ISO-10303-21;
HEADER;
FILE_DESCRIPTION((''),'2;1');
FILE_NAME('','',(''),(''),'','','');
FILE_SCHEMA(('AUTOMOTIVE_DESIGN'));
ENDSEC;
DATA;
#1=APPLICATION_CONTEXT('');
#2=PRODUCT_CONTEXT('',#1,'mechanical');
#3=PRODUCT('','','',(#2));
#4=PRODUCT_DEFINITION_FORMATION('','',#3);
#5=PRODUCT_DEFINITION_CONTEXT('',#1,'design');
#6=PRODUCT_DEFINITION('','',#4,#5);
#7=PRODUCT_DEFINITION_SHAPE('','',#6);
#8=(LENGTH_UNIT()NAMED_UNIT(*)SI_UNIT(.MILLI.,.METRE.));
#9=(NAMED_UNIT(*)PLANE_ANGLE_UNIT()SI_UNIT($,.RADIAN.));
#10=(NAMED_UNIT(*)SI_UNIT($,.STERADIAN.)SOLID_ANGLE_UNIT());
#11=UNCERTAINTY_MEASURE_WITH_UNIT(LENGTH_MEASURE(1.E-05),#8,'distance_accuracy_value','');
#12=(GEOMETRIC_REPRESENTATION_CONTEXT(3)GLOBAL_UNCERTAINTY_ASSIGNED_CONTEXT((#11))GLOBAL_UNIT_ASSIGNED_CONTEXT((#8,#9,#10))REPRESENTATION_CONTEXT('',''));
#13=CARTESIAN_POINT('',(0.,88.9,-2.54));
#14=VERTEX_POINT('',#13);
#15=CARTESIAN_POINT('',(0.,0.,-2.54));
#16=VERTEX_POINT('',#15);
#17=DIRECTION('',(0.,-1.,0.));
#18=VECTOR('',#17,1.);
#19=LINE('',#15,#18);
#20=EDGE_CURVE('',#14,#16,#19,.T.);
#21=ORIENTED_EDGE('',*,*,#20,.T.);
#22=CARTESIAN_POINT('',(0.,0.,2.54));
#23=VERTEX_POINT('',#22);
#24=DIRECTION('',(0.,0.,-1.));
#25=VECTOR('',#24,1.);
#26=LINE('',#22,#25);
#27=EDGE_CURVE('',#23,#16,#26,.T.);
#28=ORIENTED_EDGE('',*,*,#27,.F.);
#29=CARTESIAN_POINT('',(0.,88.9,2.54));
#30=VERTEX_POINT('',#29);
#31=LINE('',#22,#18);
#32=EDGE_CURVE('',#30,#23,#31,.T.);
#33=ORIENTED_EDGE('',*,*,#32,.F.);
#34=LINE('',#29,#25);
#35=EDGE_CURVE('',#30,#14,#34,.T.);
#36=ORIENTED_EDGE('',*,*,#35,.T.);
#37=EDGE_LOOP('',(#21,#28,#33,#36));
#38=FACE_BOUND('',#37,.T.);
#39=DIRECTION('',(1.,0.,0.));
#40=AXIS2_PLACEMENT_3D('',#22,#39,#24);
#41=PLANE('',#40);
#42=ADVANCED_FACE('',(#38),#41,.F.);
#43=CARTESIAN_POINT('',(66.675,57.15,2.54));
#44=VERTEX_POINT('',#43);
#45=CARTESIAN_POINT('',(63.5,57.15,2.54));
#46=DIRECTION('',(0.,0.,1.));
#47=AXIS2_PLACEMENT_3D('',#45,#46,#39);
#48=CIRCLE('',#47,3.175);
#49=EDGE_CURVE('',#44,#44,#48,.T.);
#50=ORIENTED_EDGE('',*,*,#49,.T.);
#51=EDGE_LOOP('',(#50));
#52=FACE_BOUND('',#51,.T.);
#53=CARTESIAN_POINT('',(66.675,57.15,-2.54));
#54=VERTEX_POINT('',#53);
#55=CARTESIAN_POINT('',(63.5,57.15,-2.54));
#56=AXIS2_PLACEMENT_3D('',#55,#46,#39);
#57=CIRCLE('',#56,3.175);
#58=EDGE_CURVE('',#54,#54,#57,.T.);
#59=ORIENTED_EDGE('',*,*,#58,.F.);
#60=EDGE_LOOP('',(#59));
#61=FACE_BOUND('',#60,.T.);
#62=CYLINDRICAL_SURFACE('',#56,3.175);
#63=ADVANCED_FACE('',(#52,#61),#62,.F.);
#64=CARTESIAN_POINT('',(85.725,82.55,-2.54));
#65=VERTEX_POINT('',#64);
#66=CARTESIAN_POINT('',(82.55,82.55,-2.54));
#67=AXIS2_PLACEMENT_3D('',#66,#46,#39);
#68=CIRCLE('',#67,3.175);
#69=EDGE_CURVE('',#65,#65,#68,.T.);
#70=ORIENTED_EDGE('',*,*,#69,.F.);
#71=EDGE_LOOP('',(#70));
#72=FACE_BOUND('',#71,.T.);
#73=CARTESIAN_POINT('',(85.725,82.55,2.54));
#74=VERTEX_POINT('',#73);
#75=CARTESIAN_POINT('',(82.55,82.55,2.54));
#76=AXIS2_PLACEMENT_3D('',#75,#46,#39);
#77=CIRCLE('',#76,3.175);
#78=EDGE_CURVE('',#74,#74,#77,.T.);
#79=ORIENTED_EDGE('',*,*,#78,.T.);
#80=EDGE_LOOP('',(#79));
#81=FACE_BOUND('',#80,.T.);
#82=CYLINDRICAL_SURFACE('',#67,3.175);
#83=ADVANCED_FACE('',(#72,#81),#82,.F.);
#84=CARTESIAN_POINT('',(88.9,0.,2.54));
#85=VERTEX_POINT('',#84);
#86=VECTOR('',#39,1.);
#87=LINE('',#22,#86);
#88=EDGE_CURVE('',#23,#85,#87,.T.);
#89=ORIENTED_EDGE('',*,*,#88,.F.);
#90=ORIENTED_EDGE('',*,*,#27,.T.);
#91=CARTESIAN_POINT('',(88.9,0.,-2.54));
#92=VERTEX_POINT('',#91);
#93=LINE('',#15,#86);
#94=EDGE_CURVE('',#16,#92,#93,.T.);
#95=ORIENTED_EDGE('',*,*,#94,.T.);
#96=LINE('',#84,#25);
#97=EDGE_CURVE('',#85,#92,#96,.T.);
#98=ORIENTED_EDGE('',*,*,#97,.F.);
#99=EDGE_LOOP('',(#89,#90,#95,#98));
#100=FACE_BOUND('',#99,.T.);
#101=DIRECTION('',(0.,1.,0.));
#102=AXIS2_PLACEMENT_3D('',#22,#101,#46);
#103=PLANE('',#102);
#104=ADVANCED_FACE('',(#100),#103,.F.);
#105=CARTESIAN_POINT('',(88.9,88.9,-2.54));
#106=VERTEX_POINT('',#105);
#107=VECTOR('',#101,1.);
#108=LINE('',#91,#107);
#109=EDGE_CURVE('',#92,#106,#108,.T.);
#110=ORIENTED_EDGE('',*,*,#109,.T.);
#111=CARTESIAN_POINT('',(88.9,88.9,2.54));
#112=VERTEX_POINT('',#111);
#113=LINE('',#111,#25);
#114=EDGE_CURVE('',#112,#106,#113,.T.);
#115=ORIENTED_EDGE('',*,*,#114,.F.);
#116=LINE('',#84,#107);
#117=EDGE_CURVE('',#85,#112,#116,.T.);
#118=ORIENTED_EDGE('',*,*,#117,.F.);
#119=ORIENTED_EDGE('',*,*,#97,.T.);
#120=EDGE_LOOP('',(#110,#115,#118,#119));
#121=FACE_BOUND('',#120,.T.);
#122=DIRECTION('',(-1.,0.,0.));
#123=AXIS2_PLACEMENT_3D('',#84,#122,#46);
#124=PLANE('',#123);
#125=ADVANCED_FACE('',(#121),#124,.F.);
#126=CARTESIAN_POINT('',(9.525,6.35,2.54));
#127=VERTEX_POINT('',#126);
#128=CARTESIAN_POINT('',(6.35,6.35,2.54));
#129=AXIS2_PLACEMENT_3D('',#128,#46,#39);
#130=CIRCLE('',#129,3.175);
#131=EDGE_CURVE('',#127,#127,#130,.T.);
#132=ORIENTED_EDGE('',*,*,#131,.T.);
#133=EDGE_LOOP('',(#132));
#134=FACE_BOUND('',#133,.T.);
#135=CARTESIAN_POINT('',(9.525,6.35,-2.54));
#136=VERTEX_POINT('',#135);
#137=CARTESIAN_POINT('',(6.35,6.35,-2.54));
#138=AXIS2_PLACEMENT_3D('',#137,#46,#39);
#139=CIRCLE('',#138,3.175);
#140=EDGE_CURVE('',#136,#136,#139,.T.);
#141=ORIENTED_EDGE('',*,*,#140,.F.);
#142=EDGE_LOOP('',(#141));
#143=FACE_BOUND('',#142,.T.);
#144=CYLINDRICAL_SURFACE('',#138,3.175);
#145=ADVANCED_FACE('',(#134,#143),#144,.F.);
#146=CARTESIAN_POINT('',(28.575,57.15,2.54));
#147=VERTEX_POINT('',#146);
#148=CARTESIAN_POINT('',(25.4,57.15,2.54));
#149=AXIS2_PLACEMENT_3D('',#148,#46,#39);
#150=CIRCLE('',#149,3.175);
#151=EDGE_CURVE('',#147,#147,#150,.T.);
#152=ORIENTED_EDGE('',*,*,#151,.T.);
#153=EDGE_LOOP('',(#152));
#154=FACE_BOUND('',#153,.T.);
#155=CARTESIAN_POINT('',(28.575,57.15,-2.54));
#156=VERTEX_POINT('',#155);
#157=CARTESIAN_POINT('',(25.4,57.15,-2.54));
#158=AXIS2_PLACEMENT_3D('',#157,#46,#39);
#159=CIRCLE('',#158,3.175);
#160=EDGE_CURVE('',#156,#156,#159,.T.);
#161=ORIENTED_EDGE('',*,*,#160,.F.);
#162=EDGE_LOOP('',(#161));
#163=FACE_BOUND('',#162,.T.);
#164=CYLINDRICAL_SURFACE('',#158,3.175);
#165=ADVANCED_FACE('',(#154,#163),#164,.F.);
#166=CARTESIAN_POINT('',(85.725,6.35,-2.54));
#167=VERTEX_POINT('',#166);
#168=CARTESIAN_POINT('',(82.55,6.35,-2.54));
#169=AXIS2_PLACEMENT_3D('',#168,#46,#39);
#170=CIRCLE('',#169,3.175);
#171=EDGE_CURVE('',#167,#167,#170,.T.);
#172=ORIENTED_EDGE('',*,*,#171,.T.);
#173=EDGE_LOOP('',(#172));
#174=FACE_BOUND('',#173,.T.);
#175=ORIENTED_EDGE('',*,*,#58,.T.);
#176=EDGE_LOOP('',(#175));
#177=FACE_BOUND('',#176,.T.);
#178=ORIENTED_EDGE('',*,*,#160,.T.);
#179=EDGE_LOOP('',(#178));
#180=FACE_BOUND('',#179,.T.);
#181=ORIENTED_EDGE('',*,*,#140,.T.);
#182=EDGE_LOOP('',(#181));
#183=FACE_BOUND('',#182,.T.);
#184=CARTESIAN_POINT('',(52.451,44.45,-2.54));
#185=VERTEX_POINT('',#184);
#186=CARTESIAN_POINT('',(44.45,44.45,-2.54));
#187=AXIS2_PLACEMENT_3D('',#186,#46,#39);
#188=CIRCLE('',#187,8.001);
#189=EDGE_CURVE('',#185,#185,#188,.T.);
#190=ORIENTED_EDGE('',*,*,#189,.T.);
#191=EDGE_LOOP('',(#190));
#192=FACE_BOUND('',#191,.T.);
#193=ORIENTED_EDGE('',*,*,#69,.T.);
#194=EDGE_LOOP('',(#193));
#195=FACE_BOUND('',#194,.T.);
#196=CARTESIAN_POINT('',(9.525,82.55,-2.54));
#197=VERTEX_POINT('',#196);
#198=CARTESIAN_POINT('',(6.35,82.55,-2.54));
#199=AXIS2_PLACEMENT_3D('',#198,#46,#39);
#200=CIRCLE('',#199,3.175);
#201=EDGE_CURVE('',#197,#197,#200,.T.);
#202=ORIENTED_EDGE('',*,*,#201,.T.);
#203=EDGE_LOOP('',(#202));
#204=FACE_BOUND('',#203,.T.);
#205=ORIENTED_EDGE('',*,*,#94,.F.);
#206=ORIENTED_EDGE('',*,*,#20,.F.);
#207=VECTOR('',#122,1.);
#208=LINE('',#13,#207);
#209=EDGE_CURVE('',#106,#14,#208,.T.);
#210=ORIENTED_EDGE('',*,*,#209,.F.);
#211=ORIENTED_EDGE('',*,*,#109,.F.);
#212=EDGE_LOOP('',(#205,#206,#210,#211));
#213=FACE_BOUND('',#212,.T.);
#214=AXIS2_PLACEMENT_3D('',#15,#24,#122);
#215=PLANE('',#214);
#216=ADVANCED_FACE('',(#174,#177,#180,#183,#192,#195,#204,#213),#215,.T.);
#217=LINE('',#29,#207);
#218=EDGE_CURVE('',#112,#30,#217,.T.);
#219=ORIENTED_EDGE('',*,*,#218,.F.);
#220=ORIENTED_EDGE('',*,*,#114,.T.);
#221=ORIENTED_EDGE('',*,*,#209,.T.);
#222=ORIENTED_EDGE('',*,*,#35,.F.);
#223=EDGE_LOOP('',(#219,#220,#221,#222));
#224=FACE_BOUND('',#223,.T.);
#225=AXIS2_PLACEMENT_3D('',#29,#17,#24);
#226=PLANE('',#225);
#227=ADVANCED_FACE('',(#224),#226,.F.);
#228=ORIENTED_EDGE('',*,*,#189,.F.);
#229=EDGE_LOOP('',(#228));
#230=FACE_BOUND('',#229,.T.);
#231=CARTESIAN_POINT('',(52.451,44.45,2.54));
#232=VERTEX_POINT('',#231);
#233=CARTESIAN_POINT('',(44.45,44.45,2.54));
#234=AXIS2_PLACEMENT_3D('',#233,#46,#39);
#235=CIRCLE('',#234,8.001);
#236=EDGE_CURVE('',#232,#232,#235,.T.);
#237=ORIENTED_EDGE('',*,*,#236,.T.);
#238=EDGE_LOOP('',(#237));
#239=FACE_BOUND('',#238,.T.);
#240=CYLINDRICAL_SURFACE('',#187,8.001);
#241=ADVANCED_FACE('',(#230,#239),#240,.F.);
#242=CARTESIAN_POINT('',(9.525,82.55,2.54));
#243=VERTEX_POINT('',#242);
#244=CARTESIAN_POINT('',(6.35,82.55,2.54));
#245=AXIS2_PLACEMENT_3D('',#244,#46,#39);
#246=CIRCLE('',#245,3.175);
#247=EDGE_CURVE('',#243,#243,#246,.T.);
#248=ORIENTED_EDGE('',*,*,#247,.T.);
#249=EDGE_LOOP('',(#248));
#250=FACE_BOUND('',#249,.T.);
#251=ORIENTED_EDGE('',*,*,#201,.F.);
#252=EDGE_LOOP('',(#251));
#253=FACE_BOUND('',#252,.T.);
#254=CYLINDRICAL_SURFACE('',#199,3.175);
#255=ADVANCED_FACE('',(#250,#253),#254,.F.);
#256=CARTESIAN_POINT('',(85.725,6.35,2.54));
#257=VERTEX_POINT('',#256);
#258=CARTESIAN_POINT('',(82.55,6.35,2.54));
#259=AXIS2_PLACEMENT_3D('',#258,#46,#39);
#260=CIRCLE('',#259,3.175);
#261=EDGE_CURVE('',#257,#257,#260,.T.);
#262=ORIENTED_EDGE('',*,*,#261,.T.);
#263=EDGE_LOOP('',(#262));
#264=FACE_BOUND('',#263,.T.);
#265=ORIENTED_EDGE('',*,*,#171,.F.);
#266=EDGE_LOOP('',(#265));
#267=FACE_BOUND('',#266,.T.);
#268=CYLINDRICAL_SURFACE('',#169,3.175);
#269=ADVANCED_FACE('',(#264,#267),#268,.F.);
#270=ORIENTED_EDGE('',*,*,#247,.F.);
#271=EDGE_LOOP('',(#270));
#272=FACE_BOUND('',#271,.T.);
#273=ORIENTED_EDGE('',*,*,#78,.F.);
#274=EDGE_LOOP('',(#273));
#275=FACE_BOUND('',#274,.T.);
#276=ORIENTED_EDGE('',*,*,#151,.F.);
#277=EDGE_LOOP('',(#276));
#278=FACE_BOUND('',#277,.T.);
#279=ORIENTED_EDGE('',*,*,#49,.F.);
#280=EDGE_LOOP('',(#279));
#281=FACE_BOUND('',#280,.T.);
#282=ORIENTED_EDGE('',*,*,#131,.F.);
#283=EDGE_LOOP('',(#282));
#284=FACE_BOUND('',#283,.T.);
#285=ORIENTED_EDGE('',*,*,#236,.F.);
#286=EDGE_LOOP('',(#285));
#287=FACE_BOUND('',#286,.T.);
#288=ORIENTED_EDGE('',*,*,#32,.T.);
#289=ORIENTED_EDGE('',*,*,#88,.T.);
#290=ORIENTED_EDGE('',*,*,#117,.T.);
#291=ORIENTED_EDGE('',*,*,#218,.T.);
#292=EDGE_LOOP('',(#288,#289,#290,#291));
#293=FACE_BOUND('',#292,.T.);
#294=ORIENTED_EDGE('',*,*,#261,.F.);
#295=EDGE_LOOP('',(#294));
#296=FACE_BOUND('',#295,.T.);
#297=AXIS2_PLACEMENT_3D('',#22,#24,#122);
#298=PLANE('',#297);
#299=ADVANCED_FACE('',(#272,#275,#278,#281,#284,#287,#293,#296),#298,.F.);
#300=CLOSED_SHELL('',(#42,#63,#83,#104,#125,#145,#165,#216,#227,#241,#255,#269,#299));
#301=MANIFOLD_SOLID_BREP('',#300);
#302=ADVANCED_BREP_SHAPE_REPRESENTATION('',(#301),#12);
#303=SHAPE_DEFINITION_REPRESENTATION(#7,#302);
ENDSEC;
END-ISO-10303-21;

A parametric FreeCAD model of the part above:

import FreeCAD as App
import Part
import Sketcher
Q = App.Units.Quantity

doc = App.newDocument("Part")
body = doc.addObject("PartDesign::Body", "Body")

# Sketch on XY plane
sketch1 = doc.addObject("Sketcher::SketchObject", "Sketch")
body.addObject(sketch1)
sketch1.AttachmentSupport = (doc.XY_Plane, [""])
sketch1.MapMode = "FlatFace"
sketch1.addGeometry([
    Part.LineSegment(App.Vector(0, 88.9, 0), App.Vector(0, 0, 0)),
    Part.LineSegment(App.Vector(0, 0, 0), App.Vector(88.9, 0, 0)),
    Part.LineSegment(App.Vector(88.9, 0, 0), App.Vector(88.9, 88.9, 0)),
    Part.LineSegment(App.Vector(88.9, 88.9, 0), App.Vector(0, 88.9, 0)),
], False)
sketch1.addConstraint([
    Sketcher.Constraint("Coincident", 0, 2, 1, 1),
    Sketcher.Constraint("Coincident", 1, 2, 2, 1),
    Sketcher.Constraint("Coincident", 2, 2, 3, 1),
    Sketcher.Constraint("Coincident", 3, 2, 0, 1),
    Sketcher.Constraint("Vertical", 0),
    Sketcher.Constraint("Horizontal", 1),
    Sketcher.Constraint("Vertical", 2),
    Sketcher.Constraint("Horizontal", 3),
    Sketcher.Constraint("Coincident", 0, 2, -1, 1),
    Sketcher.Constraint("Equal", 3, 0),
    Sketcher.Constraint("DistanceX", 1, 1, 1, 2, Q("3.5 in")),
])
pad1 = doc.addObject("PartDesign::Pad", "Pad")
body.addObject(pad1)
pad1.Profile = sketch1
pad1.Length = Q("0.2 in")
pad1.Midplane = True

# Sketch on XY plane
sketch2 = doc.addObject("Sketcher::SketchObject", "Sketch001")
body.addObject(sketch2)
sketch2.AttachmentSupport = (doc.XY_Plane, [""])
sketch2.MapMode = "FlatFace"
sketch2.AttachmentOffset = App.Placement(App.Vector(0, 0, 0.1 * 25.4), App.Rotation())
sketch2.addGeometry([
    Part.Circle(App.Vector(6.35, 82.55, 0), App.Vector(0, 0, 1), 3.175),  # 0
    Part.Circle(App.Vector(82.55, 82.55, 0), App.Vector(0, 0, 1), 3.175),  # 1
    Part.Circle(App.Vector(82.55, 6.35, 0), App.Vector(0, 0, 1), 3.175),  # 2
    Part.Circle(App.Vector(6.35, 6.35, 0), App.Vector(0, 0, 1), 3.175),  # 3
    Part.Circle(App.Vector(44.45, 44.45, 0), App.Vector(0, 0, 1), 8.001),  # 4
    Part.Circle(App.Vector(25.4, 57.15, 0), App.Vector(0, 0, 1), 3.175),  # 5
    Part.Circle(App.Vector(63.5, 57.15, 0), App.Vector(0, 0, 1), 3.175),  # 6
], False)
sketch2.addConstraint([
    Sketcher.Constraint("Equal", 0, 1),
    Sketcher.Constraint("Equal", 1, 2),
    Sketcher.Constraint("Equal", 2, 3),
    Sketcher.Constraint("Equal", 3, 5),
    Sketcher.Constraint("Equal", 5, 6),
    Sketcher.Constraint("Horizontal", 0, 3, 1, 3),
    Sketcher.Constraint("Horizontal", 2, 3, 3, 3),
    Sketcher.Constraint("Horizontal", 5, 3, 6, 3),
    Sketcher.Constraint("Vertical", 1, 3, 2, 3),
    Sketcher.Constraint("Vertical", 0, 3, 3, 3),
    Sketcher.Constraint("Diameter", 0, Q("0.25 in")),
    Sketcher.Constraint("Diameter", 4, Q("0.63 in")),
    Sketcher.Constraint("DistanceX", -1, 1, 5, 3, Q("1 in")),
    Sketcher.Constraint("DistanceX", 0, 3, 1, 3, Q("3 in")),
    Sketcher.Constraint("DistanceY", 2, 3, 1, 3, Q("3 in")),
    Sketcher.Constraint("DistanceY", 5, 3, 0, 3, Q("1 in")),
    Sketcher.Constraint("DistanceX", -1, 1, 6, 3, Q("2.5 in")),
    Sketcher.Constraint("DistanceX", 4, 3, 1, 3, Q("1.5 in")),
    Sketcher.Constraint("DistanceY", 4, 3, 1, 3, Q("1.5 in")),
    Sketcher.Constraint("DistanceX", -1, 1, 0, 3, Q("0.25 in")),
    Sketcher.Constraint("DistanceY", -1, 1, 0, 3, Q("3.25 in")),
])
pocket1 = doc.addObject("PartDesign::Pocket", "Pocket")
body.addObject(pocket1)
pocket1.Profile = sketch2
pocket1.Type = "ThroughAll"

doc.recompute()
